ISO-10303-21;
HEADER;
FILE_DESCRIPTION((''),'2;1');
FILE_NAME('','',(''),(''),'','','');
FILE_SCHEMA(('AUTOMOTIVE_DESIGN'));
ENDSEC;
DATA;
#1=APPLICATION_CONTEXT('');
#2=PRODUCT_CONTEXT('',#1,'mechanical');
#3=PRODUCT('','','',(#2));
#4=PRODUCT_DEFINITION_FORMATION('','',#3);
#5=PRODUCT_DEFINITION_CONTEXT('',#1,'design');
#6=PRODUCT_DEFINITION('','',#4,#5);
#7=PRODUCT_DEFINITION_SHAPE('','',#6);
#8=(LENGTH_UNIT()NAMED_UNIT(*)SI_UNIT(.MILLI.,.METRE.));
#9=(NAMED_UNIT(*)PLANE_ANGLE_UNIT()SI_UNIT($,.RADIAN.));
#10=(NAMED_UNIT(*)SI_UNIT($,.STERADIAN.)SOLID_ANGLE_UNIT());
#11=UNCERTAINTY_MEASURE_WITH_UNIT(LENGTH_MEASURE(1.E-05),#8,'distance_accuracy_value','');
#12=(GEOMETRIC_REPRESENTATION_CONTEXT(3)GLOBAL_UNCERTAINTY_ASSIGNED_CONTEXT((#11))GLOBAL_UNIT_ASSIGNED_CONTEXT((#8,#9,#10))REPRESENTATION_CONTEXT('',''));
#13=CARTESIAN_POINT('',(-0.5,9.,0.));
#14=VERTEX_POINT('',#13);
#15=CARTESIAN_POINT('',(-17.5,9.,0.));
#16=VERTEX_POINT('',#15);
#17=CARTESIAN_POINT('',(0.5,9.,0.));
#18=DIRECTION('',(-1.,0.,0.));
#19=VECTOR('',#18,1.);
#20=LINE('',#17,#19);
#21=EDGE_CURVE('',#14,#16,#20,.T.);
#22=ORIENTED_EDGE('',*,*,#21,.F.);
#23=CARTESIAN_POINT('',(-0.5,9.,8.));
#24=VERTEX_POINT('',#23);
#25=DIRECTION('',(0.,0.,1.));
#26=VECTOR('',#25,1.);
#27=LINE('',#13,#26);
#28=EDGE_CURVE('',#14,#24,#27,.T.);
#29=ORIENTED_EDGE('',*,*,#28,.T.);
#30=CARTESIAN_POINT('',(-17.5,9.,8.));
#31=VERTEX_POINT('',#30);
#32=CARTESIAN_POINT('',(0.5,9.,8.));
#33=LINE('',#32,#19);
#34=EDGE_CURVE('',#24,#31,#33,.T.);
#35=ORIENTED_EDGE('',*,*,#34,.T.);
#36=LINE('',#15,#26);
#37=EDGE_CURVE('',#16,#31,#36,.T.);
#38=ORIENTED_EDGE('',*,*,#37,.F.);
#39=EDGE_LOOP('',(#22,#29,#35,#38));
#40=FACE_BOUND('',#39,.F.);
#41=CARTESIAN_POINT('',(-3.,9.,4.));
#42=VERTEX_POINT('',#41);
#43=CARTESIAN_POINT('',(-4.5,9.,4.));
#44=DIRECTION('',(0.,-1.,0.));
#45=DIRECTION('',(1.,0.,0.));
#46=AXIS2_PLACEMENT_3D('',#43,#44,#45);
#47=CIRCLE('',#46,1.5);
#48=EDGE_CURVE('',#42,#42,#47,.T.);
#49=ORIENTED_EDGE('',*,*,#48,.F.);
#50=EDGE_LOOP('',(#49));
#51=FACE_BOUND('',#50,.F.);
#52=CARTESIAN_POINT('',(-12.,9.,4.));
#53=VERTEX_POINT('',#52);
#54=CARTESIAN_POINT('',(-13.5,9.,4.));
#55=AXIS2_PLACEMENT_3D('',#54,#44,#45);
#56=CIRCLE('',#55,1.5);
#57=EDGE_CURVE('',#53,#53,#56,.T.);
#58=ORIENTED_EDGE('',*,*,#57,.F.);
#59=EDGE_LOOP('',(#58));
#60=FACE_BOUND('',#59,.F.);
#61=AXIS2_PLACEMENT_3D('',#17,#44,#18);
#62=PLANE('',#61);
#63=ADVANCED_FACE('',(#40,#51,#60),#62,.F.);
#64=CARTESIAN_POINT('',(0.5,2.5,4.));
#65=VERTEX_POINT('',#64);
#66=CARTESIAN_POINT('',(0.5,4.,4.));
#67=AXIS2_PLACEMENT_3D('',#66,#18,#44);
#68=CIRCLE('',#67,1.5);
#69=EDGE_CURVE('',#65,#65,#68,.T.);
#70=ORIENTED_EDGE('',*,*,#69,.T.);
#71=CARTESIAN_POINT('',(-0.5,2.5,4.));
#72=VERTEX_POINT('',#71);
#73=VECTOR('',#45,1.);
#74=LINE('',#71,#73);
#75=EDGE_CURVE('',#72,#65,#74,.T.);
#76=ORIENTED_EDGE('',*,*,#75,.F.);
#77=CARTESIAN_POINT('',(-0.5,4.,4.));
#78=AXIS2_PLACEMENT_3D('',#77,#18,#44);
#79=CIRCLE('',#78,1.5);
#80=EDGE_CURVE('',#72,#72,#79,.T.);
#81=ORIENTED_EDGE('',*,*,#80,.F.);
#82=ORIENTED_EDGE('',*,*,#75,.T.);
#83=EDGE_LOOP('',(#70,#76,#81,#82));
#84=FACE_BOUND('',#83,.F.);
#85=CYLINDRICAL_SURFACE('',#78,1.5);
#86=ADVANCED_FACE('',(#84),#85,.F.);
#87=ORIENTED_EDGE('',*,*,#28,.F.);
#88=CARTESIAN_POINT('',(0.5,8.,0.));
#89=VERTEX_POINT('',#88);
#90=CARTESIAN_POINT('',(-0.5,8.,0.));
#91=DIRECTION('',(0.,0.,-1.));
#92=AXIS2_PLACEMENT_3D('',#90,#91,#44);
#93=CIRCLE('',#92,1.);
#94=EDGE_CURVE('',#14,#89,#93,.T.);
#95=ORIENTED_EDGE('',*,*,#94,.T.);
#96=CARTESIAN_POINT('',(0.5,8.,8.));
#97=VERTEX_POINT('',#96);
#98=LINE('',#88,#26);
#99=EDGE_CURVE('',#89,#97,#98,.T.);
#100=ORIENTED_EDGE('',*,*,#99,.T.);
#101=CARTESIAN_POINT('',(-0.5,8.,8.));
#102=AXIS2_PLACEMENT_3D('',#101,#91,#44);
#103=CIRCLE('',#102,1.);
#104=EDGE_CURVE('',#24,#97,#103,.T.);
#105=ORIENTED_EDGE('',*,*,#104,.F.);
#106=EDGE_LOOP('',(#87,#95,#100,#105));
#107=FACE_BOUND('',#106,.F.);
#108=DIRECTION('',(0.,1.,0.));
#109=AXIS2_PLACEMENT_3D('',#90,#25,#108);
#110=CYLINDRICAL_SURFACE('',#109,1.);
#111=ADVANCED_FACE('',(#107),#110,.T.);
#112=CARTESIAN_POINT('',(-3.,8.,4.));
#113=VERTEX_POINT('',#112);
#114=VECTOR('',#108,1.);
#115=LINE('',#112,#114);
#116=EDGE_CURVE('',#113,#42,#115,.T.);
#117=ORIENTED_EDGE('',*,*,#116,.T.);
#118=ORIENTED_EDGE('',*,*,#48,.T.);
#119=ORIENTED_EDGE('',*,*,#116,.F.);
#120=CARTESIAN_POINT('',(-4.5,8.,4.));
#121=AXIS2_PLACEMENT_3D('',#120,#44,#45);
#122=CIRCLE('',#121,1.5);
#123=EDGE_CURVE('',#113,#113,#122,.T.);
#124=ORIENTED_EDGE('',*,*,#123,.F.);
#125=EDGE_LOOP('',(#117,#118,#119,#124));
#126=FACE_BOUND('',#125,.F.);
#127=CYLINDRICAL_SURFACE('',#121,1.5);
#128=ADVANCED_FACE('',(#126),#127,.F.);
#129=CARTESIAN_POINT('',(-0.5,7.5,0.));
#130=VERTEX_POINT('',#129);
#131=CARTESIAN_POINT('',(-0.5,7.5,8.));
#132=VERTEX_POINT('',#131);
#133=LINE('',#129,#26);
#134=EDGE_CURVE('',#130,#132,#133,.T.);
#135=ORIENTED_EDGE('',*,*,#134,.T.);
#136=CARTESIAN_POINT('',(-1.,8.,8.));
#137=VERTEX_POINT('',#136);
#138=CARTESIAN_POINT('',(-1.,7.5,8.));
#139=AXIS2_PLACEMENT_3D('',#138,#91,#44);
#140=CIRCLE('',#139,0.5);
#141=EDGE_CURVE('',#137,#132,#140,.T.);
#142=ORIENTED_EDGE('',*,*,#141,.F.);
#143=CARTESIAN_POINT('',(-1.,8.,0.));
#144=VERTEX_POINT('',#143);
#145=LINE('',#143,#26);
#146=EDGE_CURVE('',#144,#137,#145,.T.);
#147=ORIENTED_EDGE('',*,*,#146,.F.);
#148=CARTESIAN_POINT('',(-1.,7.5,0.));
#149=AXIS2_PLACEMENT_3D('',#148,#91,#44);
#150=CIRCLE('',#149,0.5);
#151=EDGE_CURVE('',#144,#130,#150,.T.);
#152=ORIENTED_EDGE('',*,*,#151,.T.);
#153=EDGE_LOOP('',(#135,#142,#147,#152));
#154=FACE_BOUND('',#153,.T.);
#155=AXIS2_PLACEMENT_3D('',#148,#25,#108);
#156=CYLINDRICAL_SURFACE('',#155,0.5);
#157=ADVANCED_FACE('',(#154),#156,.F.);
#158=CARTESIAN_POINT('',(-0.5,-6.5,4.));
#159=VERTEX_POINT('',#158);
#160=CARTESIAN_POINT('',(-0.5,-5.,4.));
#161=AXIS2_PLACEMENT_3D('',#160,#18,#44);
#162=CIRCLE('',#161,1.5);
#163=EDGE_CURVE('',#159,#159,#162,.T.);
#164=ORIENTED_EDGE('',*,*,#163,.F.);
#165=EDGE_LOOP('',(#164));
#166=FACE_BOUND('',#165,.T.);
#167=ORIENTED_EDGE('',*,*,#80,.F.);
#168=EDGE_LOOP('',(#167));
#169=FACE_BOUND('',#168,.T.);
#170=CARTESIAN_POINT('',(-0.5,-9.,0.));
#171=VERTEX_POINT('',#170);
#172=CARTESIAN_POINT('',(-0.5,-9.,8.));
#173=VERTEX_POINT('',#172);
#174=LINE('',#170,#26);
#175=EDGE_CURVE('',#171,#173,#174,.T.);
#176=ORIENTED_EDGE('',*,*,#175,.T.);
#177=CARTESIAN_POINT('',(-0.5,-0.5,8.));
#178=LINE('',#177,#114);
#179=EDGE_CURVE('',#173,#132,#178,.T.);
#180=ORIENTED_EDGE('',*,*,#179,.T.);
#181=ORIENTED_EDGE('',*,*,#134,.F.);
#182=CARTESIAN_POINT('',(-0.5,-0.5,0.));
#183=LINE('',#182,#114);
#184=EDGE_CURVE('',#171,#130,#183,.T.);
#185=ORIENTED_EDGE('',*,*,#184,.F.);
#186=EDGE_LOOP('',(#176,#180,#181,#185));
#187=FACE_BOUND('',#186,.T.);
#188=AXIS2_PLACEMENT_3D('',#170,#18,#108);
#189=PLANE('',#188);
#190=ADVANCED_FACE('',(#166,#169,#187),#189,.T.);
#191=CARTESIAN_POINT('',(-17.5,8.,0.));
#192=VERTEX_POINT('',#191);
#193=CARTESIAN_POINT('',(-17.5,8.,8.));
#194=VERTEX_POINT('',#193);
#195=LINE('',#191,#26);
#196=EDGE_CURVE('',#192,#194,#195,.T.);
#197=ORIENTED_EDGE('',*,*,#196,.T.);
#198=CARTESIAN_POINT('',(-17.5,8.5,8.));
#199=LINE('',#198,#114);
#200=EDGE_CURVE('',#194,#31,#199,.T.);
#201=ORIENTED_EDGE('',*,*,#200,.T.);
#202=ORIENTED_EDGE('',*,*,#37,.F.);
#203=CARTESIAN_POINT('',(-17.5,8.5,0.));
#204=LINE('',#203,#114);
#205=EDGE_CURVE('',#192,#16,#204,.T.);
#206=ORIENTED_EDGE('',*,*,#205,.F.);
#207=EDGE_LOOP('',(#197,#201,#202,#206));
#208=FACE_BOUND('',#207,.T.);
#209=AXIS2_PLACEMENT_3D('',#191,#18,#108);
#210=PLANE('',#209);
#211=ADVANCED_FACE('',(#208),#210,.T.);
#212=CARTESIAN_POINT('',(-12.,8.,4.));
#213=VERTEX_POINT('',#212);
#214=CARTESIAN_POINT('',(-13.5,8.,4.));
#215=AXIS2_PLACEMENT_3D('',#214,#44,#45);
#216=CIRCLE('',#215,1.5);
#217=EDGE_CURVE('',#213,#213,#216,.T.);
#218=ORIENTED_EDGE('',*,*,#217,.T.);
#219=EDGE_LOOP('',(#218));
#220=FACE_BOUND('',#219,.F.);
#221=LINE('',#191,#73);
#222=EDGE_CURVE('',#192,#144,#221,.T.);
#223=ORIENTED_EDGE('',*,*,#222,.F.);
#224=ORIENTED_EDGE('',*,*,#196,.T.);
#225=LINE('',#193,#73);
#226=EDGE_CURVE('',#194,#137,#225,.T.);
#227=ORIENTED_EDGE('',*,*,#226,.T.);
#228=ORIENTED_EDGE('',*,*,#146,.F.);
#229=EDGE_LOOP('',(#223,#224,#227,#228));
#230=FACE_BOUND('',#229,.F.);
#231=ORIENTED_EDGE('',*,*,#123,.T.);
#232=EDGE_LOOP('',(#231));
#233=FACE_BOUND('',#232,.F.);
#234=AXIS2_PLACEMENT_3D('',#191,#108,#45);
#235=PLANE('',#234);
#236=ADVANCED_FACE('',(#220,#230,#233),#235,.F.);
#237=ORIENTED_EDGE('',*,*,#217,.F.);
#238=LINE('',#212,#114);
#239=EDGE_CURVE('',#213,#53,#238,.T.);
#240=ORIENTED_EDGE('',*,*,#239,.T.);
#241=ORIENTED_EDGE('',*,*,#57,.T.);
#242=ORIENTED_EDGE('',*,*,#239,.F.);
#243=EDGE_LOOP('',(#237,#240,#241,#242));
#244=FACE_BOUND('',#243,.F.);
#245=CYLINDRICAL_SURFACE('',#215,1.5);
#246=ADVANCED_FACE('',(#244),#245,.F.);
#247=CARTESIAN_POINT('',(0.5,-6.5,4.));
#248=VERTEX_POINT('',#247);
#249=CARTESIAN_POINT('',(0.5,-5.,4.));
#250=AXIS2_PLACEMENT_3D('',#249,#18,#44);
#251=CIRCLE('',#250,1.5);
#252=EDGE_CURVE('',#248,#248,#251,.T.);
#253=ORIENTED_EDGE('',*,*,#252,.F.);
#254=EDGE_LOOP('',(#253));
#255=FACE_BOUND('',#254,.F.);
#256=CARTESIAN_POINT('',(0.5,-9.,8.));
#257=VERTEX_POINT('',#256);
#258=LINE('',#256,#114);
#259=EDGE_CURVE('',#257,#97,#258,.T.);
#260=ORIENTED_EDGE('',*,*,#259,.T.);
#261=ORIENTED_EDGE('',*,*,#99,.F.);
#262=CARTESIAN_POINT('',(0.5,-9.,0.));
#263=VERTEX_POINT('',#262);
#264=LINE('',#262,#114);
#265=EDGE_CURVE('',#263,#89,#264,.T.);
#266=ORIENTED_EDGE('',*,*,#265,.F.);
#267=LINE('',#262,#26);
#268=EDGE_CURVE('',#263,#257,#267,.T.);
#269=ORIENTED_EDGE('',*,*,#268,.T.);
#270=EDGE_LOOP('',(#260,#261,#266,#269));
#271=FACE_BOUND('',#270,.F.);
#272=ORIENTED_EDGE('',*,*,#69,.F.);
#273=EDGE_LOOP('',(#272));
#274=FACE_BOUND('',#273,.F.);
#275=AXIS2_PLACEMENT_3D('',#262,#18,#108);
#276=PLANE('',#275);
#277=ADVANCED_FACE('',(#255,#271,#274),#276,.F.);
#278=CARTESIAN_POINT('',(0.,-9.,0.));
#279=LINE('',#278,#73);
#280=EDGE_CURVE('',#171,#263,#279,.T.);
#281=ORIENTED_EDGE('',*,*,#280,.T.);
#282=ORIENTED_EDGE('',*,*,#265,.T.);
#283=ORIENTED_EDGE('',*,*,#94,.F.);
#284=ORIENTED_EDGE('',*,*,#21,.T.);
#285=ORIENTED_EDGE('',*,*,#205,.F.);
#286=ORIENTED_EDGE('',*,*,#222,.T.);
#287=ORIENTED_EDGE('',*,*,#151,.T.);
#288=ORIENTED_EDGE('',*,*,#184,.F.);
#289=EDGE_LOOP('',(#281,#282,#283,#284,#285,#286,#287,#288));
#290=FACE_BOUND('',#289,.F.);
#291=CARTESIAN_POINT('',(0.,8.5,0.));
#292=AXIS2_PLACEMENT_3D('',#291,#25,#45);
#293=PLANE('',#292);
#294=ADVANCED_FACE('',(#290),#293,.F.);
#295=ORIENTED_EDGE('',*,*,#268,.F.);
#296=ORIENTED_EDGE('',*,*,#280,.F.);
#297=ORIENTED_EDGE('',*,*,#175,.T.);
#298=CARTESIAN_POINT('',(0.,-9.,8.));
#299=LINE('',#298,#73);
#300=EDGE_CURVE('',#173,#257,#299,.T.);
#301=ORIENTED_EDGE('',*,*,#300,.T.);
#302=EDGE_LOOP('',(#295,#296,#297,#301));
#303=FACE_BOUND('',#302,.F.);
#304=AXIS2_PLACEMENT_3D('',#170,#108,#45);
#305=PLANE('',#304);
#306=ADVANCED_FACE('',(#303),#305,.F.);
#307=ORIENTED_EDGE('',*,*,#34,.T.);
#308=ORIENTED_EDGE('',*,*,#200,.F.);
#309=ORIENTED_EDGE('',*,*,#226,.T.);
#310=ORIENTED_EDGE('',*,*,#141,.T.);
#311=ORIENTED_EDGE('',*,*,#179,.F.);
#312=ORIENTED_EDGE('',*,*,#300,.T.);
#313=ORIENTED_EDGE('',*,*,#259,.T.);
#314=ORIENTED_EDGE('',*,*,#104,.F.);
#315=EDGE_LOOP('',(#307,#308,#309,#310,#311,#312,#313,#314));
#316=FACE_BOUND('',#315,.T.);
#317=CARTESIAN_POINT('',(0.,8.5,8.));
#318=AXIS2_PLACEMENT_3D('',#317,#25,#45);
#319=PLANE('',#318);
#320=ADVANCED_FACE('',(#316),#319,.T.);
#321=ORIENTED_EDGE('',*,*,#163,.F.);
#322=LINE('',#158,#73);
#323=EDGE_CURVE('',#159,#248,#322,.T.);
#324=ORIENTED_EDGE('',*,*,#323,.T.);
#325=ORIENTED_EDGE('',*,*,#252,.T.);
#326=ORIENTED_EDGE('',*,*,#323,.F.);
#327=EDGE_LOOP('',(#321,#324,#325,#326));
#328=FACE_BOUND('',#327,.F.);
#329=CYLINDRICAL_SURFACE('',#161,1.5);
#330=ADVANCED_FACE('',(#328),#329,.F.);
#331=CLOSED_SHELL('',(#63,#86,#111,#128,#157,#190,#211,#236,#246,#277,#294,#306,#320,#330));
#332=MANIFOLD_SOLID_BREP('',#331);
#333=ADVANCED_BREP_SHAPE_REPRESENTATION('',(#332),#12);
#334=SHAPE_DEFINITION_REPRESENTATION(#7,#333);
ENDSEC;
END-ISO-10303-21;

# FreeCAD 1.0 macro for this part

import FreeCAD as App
import Part
import Sketcher

V = App.Vector
Q = App.Units.Quantity


def edges_at(feature, points):
    """Names of the edges that pass closest to the given points."""
    edges = feature.Shape.Edges
    near = lambda p: min(range(len(edges)), key=lambda i: edges[i].distToShape(Part.Vertex(*p))[0])
    return sorted({f"Edge{near(p) + 1}" for p in points})


def add_polygon(sketch, points):
    """Adds a closed chain of lines whose ends are joined by coincident constraints."""
    first, n = sketch.GeometryCount, len(points)
    for a, b in zip(points, points[1:] + points[:1]):
        sketch.addGeometry(Part.LineSegment(App.Vector(*a, 0), App.Vector(*b, 0)), False)
    for i in range(n):
        sketch.addConstraint(Sketcher.Constraint("Coincident", first + i, 2, first + (i + 1) % n, 1))

doc = App.newDocument("Part")
body = doc.addObject("PartDesign::Body", "Body")

# Sketch on XY plane
sketch1 = body.newObject("Sketcher::SketchObject", "Sketch")
sketch1.AttachmentSupport = (doc.getObject("XY_Plane"), [""])
sketch1.MapMode = "FlatFace"
add_polygon(sketch1, [(0.5, 9), (-17.5, 9), (-17.5, 8), (-0.5, 8), (-0.5, -9), (0.5, -9)])  # lines 0-5
sketch1.addConstraint([
    Sketcher.Constraint("Horizontal", 0),
    Sketcher.Constraint("Vertical", 1),
    Sketcher.Constraint("Horizontal", 2),
    Sketcher.Constraint("Vertical", 3),
    Sketcher.Constraint("Horizontal", 4),
    Sketcher.Constraint("Vertical", 5),
    Sketcher.Constraint("Symmetric", 3, 2, 5, 2, -1, 1),
    Sketcher.Constraint("Equal", 4, 1),
    Sketcher.Constraint("Equal", 2, 3),
    Sketcher.Constraint("DistanceX", 0, 2, 0, 1, Q("18 mm")),
    Sketcher.Constraint("DistanceX", 2, 1, 2, 2, Q("17 mm")),
])
pad1 = body.newObject("PartDesign::Pad", "Pad")
pad1.Profile = sketch1
pad1.Length = 8

# Sketch on XZ plane
sketch2 = body.newObject("Sketcher::SketchObject", "Sketch001")
sketch2.AttachmentSupport = (doc.getObject("XZ_Plane"), [""])
sketch2.MapMode = "FlatFace"
sketch2.AttachmentOffset = App.Placement(V(0, 0, -8), App.Rotation())
sketch2.addGeometry([
    Part.Circle(V(-13.5, 4, 0), V(0, 0, 1), 1.5),
    Part.Circle(V(-4.5, 4, 0), V(0, 0, 1), 1.5),
], False)
sketch2.addConstraint([
    Sketcher.Constraint("Equal", 0, 1),
    Sketcher.Constraint("Horizontal", 0, 3, 1, 3),
    Sketcher.Constraint("Diameter", 0, Q("3 mm")),
    Sketcher.Constraint("DistanceY", -1, 1, 0, 3, Q("4 mm")),
    Sketcher.Constraint("DistanceX", 0, 3, 1, 3, Q("9 mm")),
    Sketcher.Constraint("DistanceX", 0, 3, -1, 1, Q("13.5 mm")),
])
pocket1 = body.newObject("PartDesign::Pocket", "Pocket")
pocket1.Profile = sketch2
pocket1.Length = 25

# Sketch on YZ plane
sketch3 = body.newObject("Sketcher::SketchObject", "Sketch002")
sketch3.AttachmentSupport = (doc.getObject("YZ_Plane"), [""])
sketch3.MapMode = "FlatFace"
sketch3.AttachmentOffset = App.Placement(V(0, 0, -0.5), App.Rotation())
sketch3.addGeometry([
    Part.Circle(V(-5, 4, 0), V(0, 0, 1), 1.5),
    Part.Circle(V(4, 4, 0), V(0, 0, 1), 1.5),
], False)
sketch3.addConstraint([
    Sketcher.Constraint("Equal", 0, 1),
    Sketcher.Constraint("Horizontal", 0, 3, 1, 3),
    Sketcher.Constraint("Diameter", 0, Q("3 mm")),
    Sketcher.Constraint("DistanceX", 0, 3, -1, 1, Q("5 mm")),
    Sketcher.Constraint("DistanceY", -1, 1, 0, 3, Q("4 mm")),
    Sketcher.Constraint("DistanceX", -1, 1, 1, 3, Q("4 mm")),
])
pocket2 = body.newObject("PartDesign::Pocket", "Pocket001")
pocket2.Profile = sketch3
pocket2.Length = 25
pocket2.Reversed = True
doc.recompute()

fillet = body.newObject("PartDesign::Fillet", "Fillet")
fillet.Base = (pocket2, edges_at(pocket2, [(0.5, 9, 4)]))
fillet.Radius = 1
doc.recompute()

fillet2 = body.newObject("PartDesign::Fillet", "Fillet001")
fillet2.Base = (fillet, edges_at(fillet, [(-0.5, 8, 4)]))
fillet2.Radius = 0.5

doc.recompute()
